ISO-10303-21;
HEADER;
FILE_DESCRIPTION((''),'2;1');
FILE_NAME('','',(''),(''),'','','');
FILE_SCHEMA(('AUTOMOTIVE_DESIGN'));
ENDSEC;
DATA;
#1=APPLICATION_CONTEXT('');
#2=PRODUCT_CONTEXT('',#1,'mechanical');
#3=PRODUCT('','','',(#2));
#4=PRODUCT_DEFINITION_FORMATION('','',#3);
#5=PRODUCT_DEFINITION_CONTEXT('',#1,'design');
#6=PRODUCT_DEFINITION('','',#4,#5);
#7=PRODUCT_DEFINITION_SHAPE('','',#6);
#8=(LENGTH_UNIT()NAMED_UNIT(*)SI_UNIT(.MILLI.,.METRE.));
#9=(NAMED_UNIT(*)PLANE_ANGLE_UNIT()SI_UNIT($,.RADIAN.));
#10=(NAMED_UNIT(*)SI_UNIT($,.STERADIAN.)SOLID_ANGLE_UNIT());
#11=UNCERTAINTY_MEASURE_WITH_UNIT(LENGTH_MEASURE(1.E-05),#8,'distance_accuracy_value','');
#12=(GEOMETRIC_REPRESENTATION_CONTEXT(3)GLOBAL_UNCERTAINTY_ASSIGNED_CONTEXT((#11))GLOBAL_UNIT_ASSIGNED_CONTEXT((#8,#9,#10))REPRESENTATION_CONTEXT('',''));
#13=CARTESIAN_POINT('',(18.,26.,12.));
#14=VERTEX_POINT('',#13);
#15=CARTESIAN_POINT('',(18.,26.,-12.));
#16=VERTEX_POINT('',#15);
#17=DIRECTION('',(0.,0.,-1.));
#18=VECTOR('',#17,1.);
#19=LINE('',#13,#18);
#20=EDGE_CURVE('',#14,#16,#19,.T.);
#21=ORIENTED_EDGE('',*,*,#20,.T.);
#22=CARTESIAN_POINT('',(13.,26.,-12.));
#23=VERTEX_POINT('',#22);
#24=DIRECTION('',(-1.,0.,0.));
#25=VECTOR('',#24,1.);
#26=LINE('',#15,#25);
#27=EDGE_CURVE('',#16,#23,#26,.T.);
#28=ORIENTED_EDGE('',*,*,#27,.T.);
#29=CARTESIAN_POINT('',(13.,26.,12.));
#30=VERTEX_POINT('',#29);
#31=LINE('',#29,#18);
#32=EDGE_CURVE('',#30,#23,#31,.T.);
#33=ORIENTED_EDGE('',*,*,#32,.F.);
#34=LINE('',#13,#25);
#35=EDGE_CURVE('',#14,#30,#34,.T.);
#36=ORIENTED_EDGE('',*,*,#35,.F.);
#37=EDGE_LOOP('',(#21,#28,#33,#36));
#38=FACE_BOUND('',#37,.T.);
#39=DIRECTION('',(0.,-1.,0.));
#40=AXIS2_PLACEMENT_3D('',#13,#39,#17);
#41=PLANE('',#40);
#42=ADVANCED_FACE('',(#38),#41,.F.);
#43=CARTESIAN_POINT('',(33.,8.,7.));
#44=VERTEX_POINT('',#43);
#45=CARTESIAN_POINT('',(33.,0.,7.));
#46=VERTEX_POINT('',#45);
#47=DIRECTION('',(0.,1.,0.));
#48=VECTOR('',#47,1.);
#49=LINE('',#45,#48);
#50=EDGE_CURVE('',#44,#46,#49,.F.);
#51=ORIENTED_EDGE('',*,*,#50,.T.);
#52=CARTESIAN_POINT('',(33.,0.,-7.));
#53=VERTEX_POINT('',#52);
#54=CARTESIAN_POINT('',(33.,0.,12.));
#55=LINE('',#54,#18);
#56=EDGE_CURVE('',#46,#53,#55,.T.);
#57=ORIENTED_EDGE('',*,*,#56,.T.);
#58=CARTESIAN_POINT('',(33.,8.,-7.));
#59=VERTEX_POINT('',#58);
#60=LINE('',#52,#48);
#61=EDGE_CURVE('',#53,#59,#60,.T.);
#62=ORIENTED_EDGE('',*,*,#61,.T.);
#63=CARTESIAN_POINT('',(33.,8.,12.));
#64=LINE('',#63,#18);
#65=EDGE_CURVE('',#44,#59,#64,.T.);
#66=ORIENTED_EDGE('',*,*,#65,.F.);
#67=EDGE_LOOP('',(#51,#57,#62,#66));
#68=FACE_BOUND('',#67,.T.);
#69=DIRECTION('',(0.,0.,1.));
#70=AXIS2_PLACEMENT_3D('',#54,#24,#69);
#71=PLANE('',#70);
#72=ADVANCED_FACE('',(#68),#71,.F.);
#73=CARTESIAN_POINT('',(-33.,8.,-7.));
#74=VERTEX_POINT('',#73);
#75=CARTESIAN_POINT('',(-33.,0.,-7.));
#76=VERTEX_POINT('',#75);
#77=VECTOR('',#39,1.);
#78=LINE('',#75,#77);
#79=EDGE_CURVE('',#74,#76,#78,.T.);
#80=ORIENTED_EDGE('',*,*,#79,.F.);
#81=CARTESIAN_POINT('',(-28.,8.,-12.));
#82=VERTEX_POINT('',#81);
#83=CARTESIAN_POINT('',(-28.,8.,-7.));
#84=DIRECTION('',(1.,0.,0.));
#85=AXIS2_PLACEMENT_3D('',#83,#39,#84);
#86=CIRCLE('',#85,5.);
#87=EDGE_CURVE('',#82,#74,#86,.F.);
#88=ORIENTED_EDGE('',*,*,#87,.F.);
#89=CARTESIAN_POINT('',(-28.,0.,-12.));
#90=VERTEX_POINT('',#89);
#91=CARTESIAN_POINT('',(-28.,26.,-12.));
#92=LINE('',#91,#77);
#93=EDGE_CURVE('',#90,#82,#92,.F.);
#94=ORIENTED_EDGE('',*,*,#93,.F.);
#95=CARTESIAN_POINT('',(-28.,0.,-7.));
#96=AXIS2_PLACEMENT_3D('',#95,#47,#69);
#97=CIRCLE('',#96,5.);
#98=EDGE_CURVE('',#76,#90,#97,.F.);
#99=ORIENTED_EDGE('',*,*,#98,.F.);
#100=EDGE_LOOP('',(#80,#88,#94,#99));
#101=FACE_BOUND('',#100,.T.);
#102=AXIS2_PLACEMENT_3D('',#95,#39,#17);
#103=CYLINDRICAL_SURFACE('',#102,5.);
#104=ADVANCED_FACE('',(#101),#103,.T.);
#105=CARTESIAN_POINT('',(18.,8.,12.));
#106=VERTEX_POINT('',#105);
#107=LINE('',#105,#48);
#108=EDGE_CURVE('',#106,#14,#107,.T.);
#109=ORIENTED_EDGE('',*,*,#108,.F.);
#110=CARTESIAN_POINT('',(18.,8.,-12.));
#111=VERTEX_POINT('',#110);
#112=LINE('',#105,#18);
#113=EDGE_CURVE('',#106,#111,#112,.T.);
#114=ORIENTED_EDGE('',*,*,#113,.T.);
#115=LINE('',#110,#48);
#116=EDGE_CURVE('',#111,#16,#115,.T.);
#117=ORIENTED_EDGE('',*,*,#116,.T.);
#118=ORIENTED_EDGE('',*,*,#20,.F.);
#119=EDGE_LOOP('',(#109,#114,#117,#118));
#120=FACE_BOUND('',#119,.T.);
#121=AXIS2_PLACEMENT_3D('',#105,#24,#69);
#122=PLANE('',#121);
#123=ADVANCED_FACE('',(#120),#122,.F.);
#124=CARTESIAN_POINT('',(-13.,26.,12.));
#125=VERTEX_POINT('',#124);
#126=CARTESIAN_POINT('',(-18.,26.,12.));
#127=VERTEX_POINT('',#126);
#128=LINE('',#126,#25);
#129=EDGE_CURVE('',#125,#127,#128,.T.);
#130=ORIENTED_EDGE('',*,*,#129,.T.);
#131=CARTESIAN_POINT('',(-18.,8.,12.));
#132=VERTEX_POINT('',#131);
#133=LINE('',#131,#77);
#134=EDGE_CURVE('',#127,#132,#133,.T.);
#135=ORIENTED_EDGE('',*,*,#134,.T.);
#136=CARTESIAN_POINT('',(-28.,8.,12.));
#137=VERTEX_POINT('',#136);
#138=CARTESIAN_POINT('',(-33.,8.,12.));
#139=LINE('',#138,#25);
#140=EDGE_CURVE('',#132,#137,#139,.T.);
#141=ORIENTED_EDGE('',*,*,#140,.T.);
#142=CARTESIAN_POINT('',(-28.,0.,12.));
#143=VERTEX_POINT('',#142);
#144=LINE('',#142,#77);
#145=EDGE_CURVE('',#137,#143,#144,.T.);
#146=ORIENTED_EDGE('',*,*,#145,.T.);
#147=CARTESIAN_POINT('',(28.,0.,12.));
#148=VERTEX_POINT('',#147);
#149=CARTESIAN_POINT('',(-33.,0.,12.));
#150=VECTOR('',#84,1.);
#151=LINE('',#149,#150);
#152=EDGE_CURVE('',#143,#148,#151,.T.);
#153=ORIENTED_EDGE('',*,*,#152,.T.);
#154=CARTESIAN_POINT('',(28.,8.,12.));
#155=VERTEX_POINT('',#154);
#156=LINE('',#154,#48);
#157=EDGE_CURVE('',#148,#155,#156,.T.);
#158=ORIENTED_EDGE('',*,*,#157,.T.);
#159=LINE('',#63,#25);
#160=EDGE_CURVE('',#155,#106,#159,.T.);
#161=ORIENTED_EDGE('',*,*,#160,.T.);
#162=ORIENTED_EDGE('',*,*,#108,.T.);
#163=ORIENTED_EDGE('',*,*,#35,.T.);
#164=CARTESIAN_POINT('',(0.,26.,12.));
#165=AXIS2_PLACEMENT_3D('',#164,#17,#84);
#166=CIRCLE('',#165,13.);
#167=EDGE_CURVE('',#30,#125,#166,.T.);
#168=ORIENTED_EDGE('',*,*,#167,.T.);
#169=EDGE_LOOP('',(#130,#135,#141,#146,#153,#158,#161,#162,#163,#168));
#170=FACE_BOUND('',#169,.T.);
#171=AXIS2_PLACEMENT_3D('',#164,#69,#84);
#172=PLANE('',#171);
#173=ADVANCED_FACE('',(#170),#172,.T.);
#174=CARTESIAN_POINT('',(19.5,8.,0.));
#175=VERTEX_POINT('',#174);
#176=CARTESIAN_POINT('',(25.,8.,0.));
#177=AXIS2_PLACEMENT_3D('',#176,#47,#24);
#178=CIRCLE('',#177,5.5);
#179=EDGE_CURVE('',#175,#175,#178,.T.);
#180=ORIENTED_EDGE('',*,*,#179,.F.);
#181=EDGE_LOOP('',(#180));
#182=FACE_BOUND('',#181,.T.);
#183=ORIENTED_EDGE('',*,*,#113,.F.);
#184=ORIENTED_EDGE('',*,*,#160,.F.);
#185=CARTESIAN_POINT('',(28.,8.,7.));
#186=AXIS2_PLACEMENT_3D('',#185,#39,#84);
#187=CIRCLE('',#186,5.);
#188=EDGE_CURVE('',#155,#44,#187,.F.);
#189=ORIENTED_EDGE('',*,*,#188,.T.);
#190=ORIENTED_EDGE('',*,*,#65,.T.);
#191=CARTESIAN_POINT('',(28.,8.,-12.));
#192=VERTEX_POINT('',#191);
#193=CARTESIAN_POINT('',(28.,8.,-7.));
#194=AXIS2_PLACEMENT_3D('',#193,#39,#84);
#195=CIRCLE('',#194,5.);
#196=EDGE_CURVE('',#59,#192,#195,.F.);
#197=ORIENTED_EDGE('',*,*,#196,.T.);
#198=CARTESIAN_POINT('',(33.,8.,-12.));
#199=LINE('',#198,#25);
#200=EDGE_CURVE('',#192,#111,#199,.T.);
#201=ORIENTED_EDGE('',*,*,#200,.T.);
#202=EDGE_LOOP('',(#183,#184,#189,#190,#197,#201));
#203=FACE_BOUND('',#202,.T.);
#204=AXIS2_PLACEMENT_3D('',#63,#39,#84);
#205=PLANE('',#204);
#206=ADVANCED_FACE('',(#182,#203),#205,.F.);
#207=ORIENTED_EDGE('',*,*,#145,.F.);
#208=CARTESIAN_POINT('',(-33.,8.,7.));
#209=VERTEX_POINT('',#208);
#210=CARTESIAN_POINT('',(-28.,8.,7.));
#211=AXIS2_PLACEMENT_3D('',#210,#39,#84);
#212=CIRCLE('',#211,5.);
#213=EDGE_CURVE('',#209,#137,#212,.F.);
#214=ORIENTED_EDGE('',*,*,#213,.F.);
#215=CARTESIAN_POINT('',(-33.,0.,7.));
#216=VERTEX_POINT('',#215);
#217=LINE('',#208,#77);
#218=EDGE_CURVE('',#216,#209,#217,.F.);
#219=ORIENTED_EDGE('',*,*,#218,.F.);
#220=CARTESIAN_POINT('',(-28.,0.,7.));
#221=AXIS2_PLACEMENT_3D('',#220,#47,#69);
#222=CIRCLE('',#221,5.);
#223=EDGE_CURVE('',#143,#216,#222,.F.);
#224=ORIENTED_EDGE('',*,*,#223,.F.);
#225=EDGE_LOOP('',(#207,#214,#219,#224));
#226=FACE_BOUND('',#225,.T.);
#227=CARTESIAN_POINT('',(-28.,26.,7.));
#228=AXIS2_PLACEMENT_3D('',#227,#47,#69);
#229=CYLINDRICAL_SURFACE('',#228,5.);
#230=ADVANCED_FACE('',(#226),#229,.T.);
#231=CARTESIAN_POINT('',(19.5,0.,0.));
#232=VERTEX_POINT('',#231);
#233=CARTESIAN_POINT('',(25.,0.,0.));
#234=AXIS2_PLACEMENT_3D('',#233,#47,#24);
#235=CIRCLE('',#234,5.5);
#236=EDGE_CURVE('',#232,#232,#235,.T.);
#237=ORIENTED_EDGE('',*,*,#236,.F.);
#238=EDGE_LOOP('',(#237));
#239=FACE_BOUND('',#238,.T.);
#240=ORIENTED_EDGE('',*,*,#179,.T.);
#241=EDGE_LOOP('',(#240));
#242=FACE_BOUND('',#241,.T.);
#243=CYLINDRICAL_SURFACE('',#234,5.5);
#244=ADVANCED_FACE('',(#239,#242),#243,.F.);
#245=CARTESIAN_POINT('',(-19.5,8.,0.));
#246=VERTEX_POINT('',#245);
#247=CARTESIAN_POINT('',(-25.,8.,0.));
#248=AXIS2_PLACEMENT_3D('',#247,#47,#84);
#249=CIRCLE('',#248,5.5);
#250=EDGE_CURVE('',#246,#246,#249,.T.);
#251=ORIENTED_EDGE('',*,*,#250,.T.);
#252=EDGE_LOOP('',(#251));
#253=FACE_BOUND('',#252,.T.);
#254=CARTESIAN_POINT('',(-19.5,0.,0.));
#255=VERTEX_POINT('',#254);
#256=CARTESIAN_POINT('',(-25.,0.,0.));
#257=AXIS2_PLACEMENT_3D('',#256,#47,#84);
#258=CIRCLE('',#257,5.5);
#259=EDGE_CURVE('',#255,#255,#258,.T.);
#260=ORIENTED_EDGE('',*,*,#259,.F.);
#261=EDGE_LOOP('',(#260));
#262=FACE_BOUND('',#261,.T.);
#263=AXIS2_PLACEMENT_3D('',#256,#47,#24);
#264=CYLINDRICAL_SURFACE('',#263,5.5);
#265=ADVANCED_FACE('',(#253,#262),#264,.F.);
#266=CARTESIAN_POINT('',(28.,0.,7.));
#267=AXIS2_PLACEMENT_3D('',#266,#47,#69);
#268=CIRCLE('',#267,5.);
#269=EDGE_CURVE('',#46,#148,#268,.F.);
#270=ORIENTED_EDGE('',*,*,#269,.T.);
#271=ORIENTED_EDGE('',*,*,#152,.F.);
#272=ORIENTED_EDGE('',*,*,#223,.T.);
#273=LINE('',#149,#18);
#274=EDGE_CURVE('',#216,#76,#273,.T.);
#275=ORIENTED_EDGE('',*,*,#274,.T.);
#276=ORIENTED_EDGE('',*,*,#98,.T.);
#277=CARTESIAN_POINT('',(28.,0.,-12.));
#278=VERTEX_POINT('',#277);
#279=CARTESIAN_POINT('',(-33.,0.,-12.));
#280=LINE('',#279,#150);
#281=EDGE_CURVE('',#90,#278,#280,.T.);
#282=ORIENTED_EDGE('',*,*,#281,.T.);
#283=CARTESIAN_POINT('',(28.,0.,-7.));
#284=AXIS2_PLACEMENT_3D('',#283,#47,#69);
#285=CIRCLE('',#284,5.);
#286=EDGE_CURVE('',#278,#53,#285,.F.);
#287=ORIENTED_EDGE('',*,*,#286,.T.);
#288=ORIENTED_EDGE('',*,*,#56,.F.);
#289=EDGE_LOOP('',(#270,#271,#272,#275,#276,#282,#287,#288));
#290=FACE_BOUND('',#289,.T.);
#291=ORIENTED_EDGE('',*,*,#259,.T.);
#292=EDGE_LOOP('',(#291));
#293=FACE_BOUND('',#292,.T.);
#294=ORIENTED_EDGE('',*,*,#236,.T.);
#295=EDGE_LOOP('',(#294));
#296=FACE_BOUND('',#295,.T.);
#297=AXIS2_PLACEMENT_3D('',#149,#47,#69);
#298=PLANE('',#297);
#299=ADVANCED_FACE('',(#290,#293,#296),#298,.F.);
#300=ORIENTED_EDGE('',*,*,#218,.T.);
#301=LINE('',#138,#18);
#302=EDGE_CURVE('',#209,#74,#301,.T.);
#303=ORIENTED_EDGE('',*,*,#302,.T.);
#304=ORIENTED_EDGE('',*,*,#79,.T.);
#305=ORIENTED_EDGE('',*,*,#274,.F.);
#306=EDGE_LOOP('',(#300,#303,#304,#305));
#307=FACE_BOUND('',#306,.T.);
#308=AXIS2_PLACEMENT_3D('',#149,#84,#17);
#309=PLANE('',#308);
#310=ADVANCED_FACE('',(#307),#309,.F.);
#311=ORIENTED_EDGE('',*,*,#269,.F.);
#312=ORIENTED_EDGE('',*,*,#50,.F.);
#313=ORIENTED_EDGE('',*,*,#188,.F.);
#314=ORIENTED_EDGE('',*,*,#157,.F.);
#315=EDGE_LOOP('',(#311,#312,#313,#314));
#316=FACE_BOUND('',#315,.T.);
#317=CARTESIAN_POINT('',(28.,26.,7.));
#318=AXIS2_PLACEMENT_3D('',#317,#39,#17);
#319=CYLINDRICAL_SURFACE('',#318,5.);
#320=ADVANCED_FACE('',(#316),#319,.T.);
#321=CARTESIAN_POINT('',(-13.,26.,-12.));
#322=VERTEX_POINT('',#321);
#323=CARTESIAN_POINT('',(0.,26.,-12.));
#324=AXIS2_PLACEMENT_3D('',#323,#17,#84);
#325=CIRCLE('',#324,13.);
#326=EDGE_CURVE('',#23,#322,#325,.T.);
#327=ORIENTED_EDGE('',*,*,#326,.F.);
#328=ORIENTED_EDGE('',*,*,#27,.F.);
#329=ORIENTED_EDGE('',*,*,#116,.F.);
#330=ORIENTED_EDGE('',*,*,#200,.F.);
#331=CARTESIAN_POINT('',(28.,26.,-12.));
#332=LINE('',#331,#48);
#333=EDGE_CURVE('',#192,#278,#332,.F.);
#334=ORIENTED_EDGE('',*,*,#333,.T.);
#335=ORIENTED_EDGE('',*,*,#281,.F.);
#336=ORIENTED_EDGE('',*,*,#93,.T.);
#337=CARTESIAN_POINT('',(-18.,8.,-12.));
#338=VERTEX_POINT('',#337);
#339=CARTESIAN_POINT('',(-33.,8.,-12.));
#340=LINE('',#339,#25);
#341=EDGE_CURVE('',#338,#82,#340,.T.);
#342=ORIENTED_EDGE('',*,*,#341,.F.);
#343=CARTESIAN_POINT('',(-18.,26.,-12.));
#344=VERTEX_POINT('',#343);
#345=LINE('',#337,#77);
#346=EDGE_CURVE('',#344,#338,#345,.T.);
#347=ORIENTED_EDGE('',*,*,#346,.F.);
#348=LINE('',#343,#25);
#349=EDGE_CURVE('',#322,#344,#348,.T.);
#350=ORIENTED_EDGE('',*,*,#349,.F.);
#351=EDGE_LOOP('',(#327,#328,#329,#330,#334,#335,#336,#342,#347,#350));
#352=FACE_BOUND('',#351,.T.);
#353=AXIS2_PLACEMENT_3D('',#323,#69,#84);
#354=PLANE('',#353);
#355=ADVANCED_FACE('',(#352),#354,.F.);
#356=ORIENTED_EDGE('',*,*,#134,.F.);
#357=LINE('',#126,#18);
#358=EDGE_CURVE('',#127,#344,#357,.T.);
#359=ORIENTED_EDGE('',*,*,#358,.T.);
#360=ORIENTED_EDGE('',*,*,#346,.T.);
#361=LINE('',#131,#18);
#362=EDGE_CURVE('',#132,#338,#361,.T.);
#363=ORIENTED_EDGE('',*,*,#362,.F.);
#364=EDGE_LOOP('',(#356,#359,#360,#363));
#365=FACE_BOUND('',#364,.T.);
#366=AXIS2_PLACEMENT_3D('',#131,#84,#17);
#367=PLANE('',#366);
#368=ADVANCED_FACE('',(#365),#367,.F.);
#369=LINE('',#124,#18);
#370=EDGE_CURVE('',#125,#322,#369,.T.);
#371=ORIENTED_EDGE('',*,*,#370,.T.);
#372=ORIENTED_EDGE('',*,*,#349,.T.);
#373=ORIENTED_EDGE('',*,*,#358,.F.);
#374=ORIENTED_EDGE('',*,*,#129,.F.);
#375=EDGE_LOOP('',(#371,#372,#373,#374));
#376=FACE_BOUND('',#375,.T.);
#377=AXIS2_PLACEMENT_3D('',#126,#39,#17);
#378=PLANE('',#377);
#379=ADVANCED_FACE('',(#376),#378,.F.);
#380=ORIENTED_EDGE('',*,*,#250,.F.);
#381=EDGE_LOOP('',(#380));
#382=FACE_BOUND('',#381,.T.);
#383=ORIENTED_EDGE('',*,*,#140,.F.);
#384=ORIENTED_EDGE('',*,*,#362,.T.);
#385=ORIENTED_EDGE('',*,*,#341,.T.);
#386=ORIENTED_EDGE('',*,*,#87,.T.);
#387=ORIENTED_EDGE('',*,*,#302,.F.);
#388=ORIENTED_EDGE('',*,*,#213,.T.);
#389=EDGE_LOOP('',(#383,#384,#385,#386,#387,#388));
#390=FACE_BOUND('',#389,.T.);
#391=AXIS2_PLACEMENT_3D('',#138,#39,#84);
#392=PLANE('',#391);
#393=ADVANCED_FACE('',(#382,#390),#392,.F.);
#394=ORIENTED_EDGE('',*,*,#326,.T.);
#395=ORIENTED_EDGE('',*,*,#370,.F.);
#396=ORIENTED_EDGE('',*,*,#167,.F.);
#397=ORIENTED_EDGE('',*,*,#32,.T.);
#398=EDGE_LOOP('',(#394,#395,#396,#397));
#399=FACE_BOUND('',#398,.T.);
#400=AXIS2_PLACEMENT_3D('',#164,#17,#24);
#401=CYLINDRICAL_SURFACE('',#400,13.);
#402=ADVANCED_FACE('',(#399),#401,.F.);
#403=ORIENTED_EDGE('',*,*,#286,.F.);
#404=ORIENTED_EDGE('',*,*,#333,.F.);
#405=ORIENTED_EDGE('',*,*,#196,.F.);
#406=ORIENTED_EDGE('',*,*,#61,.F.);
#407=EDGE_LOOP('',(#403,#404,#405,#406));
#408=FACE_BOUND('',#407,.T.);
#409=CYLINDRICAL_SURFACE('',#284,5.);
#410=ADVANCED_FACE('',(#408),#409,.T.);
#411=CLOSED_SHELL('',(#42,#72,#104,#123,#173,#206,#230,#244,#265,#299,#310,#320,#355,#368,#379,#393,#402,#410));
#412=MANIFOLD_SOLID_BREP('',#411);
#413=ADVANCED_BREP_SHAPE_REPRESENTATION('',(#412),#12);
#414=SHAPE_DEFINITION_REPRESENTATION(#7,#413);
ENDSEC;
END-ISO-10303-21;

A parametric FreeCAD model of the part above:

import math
import FreeCAD as App
import Part
import Sketcher
from FreeCAD import Vector
Q = App.Units.Quantity


def edges_at(feature, points):
    """Names of the edges that pass closest to the given points."""
    edges = feature.Shape.Edges
    near = lambda p: min(range(len(edges)), key=lambda i: edges[i].distToShape(Part.Vertex(*p))[0])
    return sorted({f"Edge{near(p) + 1}" for p in points})

doc = App.newDocument("Part")
body = doc.addObject("PartDesign::Body", "Body")

sketch1 = doc.addObject("Sketcher::SketchObject", "Sketch")
body.addObject(sketch1)
sketch1.AttachmentSupport = (doc.XY_Plane, [""])
sketch1.MapMode = "FlatFace"
sketch1.addGeometry(Part.LineSegment(Vector(-33, 0, 0), Vector(33, 0, 0)), False)
sketch1.addGeometry(Part.LineSegment(Vector(33, 0, 0), Vector(33, 8, 0)), False)
sketch1.addGeometry(Part.LineSegment(Vector(33, 8, 0), Vector(18, 8, 0)), False)
sketch1.addGeometry(Part.LineSegment(Vector(18, 8, 0), Vector(18, 26, 0)), False)
sketch1.addGeometry(Part.LineSegment(Vector(18, 26, 0), Vector(13, 26, 0)), False)
sketch1.addGeometry(Part.ArcOfCircle(Part.Circle(Vector(0, 26, 0), Vector(0, 0, 1), 13), math.radians(180), math.radians(360)), False)
sketch1.addGeometry(Part.LineSegment(Vector(-13, 26, 0), Vector(-18, 26, 0)), False)
sketch1.addGeometry(Part.LineSegment(Vector(-18, 26, 0), Vector(-18, 8, 0)), False)
sketch1.addGeometry(Part.LineSegment(Vector(-18, 8, 0), Vector(-33, 8, 0)), False)
sketch1.addGeometry(Part.LineSegment(Vector(-33, 8, 0), Vector(-33, 0, 0)), False)
sketch1.addConstraint(Sketcher.Constraint("Coincident", 0, 2, 1, 1))
sketch1.addConstraint(Sketcher.Constraint("Coincident", 1, 2, 2, 1))
sketch1.addConstraint(Sketcher.Constraint("Coincident", 2, 2, 3, 1))
sketch1.addConstraint(Sketcher.Constraint("Coincident", 3, 2, 4, 1))
sketch1.addConstraint(Sketcher.Constraint("Coincident", 4, 2, 5, 2))
sketch1.addConstraint(Sketcher.Constraint("Coincident", 5, 1, 6, 1))
sketch1.addConstraint(Sketcher.Constraint("Coincident", 6, 2, 7, 1))
sketch1.addConstraint(Sketcher.Constraint("Coincident", 7, 2, 8, 1))
sketch1.addConstraint(Sketcher.Constraint("Coincident", 8, 2, 9, 1))
sketch1.addConstraint(Sketcher.Constraint("Coincident", 9, 2, 0, 1))
sketch1.addConstraint(Sketcher.Constraint("Horizontal", 0))
sketch1.addConstraint(Sketcher.Constraint("Vertical", 1))
sketch1.addConstraint(Sketcher.Constraint("Horizontal", 2))
sketch1.addConstraint(Sketcher.Constraint("Vertical", 3))
sketch1.addConstraint(Sketcher.Constraint("Horizontal", 4))
sketch1.addConstraint(Sketcher.Constraint("Horizontal", 6))
sketch1.addConstraint(Sketcher.Constraint("Vertical", 7))
sketch1.addConstraint(Sketcher.Constraint("Horizontal", 8))
sketch1.addConstraint(Sketcher.Constraint("Vertical", 9))
sketch1.addConstraint(Sketcher.Constraint("Symmetric", 0, 2, 9, 2, -1, 1))
sketch1.addConstraint(Sketcher.Constraint("Symmetric", 4, 2, 5, 1, -2))
sketch1.addConstraint(Sketcher.Constraint("Symmetric", 2, 2, 7, 2, -2))
sketch1.addConstraint(Sketcher.Constraint("Horizontal", 5, 3, 3, 2))
sketch1.addConstraint(Sketcher.Constraint("Radius", 5, Q("13 mm")))
sketch1.addConstraint(Sketcher.Constraint("DistanceX", 0, 1, 0, 2, Q("66 mm")))
sketch1.addConstraint(Sketcher.Constraint("DistanceX", 2, 2, 2, 1, Q("15 mm")))
sketch1.addConstraint(Sketcher.Constraint("DistanceY", 1, 1, 1, 2, Q("8 mm")))
sketch1.addConstraint(Sketcher.Constraint("DistanceY", 3, 1, 3, 2, Q("18 mm")))
pad1 = doc.addObject("PartDesign::Pad", "Pad")
body.addObject(pad1)
pad1.Profile = sketch1
pad1.Length = 24
pad1.Midplane = True

sketch2 = doc.addObject("Sketcher::SketchObject", "Sketch001")
body.addObject(sketch2)
sketch2.AttachmentSupport = (doc.XZ_Plane, [""])
sketch2.MapMode = "FlatFace"
sketch2.AttachmentOffset = App.Placement(Vector(0, 0, -8), App.Rotation())
sketch2.addGeometry(Part.Circle(Vector(25, 0, 0), Vector(0, 0, 1), 6), False)
sketch2.addGeometry(Part.Circle(Vector(-25, 0, 0), Vector(0, 0, 1), 6), False)
sketch2.addConstraint(Sketcher.Constraint("Equal", 0, 1))
sketch2.addConstraint(Sketcher.Constraint("Symmetric", 0, 3, 1, 3, -1, 1))
sketch2.addConstraint(Sketcher.Constraint("PointOnObject", 0, 3, -1))
sketch2.addConstraint(Sketcher.Constraint("Diameter", 0, Q("11 mm")))
sketch2.addConstraint(Sketcher.Constraint("DistanceX", -1, 1, 0, 3, Q("25 mm")))
pocket1 = doc.addObject("PartDesign::Pocket", "Pocket")
body.addObject(pocket1)
pocket1.Profile = sketch2
pocket1.Type = "ThroughAll"
pocket1.Reversed = True
doc.recompute()

fillet = doc.addObject("PartDesign::Fillet", "Fillet")
body.addObject(fillet)
fillet.Base = (pocket1, edges_at(pocket1, [
    (33, 4, -12),
    (-33, 4, -12),
    (-33, 4, 12),
    (33, 4, 12),
]))
fillet.Radius = 5

doc.recompute()
